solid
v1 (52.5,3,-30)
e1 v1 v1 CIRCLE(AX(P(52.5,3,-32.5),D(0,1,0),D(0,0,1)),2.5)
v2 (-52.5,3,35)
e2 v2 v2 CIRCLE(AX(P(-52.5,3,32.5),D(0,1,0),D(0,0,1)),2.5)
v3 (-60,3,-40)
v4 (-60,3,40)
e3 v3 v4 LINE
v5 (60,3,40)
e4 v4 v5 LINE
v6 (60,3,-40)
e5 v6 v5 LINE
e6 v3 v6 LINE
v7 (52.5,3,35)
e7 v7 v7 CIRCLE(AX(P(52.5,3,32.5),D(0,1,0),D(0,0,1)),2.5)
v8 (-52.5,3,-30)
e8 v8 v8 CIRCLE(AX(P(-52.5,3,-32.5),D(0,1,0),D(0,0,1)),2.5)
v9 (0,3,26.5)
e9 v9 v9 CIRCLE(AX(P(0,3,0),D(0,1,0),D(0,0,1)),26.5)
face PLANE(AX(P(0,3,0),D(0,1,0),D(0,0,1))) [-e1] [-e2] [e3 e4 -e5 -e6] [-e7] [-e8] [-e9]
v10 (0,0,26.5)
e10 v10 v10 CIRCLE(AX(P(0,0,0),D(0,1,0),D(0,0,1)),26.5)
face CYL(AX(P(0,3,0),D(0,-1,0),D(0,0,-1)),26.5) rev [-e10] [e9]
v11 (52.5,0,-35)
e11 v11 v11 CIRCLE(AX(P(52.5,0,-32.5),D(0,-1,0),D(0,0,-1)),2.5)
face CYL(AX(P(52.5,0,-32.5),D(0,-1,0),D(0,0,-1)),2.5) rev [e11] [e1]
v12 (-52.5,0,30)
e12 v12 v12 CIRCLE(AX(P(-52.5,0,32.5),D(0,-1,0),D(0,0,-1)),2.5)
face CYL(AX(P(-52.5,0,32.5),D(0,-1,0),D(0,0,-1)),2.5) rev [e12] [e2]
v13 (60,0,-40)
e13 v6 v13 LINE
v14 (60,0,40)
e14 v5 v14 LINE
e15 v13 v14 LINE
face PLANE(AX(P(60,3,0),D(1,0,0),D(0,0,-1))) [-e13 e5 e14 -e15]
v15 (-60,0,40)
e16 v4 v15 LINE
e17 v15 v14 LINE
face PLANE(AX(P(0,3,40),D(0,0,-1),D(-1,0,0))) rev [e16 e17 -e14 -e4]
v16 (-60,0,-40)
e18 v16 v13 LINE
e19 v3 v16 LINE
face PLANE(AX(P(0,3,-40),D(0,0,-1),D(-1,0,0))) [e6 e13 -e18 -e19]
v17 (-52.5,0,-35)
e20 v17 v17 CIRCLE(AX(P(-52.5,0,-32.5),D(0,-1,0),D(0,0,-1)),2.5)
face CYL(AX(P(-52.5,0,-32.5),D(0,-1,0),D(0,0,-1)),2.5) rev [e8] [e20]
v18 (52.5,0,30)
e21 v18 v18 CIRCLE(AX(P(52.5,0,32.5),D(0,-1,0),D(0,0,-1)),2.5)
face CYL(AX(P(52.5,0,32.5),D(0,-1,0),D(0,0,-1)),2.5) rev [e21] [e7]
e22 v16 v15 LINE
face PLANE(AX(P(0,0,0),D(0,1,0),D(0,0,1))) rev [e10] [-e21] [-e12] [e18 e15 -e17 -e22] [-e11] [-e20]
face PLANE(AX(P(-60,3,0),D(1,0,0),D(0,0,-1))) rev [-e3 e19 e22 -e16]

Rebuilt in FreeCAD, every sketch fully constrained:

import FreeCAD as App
import Part
import Sketcher

V = App.Vector

doc = App.newDocument("Part")
body = doc.addObject("PartDesign::Body", "Body")

# Sketch on XZ plane
sketch1 = body.newObject("Sketcher::SketchObject", "Sketch")
sketch1.AttachmentSupport = (doc.getObject("XZ_Plane"), [""])
sketch1.MapMode = "FlatFace"
sketch1.addGeometry([
    Part.LineSegment(V(60, 40, 0), V(60, -40, 0)),  # 0
    Part.LineSegment(V(60, -40, 0), V(-60, -40, 0)),  # 1
    Part.LineSegment(V(-60, -40, 0), V(-60, 40, 0)),  # 2
    Part.LineSegment(V(-60, 40, 0), V(60, 40, 0)),  # 3
    Part.Circle(V(0, 0, 0), V(0, 0, 1), 26.5),  # 4
], False)
sketch1.addConstraint([
    Sketcher.Constraint("Coincident", 0, 2, 1, 1),
    Sketcher.Constraint("Coincident", 1, 2, 2, 1),
    Sketcher.Constraint("Coincident", 2, 2, 3, 1),
    Sketcher.Constraint("Coincident", 3, 2, 0, 1),
    Sketcher.Constraint("Vertical", 0),
    Sketcher.Constraint("Horizontal", 1),
    Sketcher.Constraint("Vertical", 2),
    Sketcher.Constraint("Horizontal", 3),
    Sketcher.Constraint("Coincident", 4, 3, -1, 1),
    Sketcher.Constraint("Symmetric", 0, 2, 2, 2, -1, 1),
    Sketcher.Constraint("Diameter", 4, 53.0),
    Sketcher.Constraint("DistanceX", 1, 2, 1, 1, 120.0),
    Sketcher.Constraint("DistanceY", 0, 2, 0, 1, 80.0),
])
pad1 = body.newObject("PartDesign::Pad", "Pad")
pad1.Profile = sketch1
pad1.Length = 3
pad1.Reversed = True

# Sketch on XZ plane
sketch2 = body.newObject("Sketcher::SketchObject", "Sketch001")
sketch2.AttachmentSupport = (doc.getObject("XZ_Plane"), [""])
sketch2.MapMode = "FlatFace"
sketch2.addGeometry([
    Part.Circle(V(-52.5, 32.5, 0), V(0, 0, 1), 2.5),
    Part.Circle(V(52.5, 32.5, 0), V(0, 0, 1), 2.5),
    Part.Circle(V(52.5, -32.5, 0), V(0, 0, 1), 2.5),
    Part.Circle(V(-52.5, -32.5, 0), V(0, 0, 1), 2.5),
], False)
sketch2.addConstraint([
    Sketcher.Constraint("Equal", 0, 1),
    Sketcher.Constraint("Equal", 1, 2),
    Sketcher.Constraint("Equal", 2, 3),
    Sketcher.Constraint("Symmetric", 0, 3, 2, 3, -1, 1),
    Sketcher.Constraint("Symmetric", 1, 3, 3, 3, -1, 1),
    Sketcher.Constraint("Symmetric", 0, 3, 1, 3, -2),
    Sketcher.Constraint("Diameter", 0, 5.0),
    Sketcher.Constraint("DistanceX", 0, 3, 1, 3, 105.0),
    Sketcher.Constraint("DistanceY", 2, 3, 1, 3, 65.0),
])
doc.recompute()
hole = body.newObject("PartDesign::Hole", "Hole")
hole.Profile = sketch2
hole.ThreadType = "None"
hole.Diameter = 5
hole.DepthType = "Dimension"
hole.Depth = 3
hole.DrillPoint = "Flat"

doc.recompute()
